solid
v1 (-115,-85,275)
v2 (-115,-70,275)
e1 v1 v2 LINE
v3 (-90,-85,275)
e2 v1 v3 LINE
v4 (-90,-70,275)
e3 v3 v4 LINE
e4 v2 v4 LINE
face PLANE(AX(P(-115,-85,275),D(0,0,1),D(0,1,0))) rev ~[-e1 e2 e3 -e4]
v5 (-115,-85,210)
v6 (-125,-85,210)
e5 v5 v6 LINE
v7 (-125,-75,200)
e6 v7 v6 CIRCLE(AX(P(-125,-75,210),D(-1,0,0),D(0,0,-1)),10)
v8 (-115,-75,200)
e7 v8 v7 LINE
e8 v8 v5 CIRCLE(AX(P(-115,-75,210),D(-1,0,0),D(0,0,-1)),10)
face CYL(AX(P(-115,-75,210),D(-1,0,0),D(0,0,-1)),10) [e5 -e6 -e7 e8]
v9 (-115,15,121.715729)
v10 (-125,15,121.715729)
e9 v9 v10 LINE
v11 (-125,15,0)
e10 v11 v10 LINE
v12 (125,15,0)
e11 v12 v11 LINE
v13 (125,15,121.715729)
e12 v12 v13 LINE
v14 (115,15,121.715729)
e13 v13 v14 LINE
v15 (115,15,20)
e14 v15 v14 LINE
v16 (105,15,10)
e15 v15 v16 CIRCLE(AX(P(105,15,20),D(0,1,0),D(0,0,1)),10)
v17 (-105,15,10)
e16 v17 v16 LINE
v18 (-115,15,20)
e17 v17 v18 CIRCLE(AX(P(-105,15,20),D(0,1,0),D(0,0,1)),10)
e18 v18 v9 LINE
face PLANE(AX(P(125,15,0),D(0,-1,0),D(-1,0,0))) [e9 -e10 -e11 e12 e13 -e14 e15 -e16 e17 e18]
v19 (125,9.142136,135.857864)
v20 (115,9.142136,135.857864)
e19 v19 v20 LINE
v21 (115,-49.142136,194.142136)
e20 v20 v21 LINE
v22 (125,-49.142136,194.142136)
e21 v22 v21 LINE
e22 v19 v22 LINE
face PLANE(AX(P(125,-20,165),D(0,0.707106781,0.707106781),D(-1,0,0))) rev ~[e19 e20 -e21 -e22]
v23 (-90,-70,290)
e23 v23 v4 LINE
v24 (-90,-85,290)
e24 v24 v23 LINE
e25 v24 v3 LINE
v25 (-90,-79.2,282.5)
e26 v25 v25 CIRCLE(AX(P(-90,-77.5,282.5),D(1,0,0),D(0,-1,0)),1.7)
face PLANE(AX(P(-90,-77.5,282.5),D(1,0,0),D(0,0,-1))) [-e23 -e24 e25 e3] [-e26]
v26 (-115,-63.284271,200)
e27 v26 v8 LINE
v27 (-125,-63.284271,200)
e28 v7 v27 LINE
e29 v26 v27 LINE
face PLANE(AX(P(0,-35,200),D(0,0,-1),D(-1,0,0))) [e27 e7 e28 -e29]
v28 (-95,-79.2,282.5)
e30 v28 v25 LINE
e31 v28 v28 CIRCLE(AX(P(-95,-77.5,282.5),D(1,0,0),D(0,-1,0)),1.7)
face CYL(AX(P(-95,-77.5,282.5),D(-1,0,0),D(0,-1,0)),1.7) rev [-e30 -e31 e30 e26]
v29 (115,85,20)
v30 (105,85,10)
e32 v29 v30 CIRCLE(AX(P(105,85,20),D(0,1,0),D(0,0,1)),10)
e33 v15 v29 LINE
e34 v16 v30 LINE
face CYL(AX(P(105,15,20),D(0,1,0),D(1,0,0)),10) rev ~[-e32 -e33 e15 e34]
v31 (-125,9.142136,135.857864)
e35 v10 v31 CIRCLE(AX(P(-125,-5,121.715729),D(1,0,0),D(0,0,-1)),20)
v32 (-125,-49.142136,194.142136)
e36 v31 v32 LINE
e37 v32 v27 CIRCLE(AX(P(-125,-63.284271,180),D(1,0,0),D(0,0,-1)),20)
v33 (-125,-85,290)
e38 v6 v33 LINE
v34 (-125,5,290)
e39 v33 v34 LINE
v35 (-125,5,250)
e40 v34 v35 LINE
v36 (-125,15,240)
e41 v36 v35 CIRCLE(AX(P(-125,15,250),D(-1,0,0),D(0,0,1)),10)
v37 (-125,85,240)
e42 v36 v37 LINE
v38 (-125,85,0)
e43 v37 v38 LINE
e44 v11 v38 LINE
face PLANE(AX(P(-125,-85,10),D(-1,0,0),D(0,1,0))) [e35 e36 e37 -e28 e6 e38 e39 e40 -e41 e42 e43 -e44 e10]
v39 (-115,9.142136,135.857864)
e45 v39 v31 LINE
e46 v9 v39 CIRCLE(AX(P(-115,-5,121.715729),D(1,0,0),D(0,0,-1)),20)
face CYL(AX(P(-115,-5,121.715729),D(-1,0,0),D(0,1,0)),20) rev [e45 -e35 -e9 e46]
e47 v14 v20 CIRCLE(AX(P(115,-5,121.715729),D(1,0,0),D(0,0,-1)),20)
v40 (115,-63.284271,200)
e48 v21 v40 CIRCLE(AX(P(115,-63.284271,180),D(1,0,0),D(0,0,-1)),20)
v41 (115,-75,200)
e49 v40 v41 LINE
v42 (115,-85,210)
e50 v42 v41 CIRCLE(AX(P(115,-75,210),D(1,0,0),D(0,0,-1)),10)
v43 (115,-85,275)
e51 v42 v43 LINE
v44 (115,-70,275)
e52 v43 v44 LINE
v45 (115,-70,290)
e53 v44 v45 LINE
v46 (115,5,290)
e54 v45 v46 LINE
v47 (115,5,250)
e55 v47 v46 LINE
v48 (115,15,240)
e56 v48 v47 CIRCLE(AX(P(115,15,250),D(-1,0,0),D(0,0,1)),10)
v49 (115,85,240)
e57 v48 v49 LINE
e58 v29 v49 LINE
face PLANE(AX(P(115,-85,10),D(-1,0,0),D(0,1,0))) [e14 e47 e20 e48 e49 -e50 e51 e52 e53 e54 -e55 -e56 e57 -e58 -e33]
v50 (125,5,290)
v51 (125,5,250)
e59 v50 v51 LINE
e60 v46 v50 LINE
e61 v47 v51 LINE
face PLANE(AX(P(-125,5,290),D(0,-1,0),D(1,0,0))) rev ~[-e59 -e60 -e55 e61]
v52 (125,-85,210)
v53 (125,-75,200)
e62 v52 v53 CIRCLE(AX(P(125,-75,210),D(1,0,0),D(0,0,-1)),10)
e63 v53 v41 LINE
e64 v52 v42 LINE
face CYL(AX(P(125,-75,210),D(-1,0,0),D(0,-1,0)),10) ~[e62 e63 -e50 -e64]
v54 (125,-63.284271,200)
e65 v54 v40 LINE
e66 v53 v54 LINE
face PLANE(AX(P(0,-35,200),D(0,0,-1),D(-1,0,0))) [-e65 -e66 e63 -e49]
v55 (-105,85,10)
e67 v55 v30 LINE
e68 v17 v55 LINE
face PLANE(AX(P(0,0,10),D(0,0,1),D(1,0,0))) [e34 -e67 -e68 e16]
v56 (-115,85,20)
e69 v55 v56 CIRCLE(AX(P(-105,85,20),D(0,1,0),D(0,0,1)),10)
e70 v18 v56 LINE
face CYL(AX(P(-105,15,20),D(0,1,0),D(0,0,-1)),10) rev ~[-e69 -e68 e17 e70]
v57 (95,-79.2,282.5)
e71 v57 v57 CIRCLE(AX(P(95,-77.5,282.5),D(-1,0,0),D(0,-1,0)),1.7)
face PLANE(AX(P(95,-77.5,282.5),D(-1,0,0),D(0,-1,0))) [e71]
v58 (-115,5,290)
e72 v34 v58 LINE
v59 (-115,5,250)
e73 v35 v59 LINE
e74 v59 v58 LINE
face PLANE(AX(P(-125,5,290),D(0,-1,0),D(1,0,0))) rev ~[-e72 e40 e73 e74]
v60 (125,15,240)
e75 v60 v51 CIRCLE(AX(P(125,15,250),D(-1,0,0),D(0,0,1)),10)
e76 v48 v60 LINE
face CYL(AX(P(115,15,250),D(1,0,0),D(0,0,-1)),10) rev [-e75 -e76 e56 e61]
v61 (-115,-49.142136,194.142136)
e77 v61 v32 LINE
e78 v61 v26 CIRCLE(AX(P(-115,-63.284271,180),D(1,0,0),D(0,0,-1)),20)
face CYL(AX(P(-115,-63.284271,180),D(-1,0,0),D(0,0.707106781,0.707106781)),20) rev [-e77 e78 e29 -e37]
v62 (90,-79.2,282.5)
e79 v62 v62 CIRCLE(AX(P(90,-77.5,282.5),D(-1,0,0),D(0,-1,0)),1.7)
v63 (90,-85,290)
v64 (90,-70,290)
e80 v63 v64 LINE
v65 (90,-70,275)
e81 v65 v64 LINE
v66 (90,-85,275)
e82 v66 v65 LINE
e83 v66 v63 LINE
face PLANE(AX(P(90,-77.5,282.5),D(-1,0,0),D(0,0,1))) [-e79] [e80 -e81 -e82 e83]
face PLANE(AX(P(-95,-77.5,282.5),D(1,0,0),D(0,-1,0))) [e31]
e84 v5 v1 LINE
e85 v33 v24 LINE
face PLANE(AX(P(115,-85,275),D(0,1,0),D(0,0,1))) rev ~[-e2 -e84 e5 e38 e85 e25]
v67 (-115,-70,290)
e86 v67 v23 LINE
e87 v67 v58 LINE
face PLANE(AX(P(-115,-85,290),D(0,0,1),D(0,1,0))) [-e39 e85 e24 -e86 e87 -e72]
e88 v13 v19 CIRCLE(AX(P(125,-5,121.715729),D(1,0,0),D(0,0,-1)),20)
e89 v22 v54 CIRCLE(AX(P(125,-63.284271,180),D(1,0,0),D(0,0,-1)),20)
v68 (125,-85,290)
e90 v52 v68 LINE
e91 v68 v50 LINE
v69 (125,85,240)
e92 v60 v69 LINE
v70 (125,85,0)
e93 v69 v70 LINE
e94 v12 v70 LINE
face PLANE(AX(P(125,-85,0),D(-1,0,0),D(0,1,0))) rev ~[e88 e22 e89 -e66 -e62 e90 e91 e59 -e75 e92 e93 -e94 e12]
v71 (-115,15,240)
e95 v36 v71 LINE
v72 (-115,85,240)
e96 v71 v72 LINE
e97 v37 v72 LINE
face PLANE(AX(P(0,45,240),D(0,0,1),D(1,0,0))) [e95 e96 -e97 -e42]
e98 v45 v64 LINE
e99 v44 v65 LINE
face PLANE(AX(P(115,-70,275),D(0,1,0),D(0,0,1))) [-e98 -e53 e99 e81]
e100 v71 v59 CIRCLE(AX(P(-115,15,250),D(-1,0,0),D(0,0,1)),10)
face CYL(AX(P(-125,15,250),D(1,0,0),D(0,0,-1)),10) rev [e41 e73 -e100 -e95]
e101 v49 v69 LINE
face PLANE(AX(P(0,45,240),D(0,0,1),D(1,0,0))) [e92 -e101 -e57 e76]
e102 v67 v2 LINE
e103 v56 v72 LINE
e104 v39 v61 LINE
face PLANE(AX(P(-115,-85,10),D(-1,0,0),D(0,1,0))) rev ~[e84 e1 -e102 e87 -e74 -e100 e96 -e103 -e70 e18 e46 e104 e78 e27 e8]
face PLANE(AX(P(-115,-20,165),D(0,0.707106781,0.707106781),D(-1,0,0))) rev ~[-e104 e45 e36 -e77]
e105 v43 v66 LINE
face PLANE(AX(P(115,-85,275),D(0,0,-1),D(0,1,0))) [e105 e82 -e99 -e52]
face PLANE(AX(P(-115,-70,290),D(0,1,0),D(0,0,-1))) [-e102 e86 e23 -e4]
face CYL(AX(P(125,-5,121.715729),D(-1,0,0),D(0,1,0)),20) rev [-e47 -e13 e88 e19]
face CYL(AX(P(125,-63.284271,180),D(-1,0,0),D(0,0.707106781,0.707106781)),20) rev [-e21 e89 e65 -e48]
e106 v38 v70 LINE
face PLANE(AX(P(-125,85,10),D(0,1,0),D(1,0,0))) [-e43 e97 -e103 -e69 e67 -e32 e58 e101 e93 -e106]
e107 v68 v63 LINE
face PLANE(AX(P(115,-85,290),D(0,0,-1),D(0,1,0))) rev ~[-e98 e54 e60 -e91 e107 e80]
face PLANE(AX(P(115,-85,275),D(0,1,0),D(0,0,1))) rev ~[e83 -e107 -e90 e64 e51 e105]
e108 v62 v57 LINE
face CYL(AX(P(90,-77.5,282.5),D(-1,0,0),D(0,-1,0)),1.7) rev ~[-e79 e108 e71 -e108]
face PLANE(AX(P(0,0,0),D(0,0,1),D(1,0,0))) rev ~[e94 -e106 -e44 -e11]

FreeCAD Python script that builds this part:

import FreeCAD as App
import Part
import Sketcher
from FreeCAD import Vector
Q = App.Units.Quantity


def edges_at(feature, points):
    """Names of the edges that pass closest to the given points."""
    edges = feature.Shape.Edges
    near = lambda p: min(range(len(edges)), key=lambda i: edges[i].distToShape(Part.Vertex(*p))[0])
    return sorted({f"Edge{near(p) + 1}" for p in points})

doc = App.newDocument("Part")
body = doc.addObject("PartDesign::Body", "Body")

# Sketch on XY plane
sketch1 = body.newObject("Sketcher::SketchObject", "Sketch")
sketch1.AttachmentSupport = (doc.getObject("XY_Plane"), [""])
sketch1.MapMode = "FlatFace"
sketch1.addGeometry(Part.LineSegment(Vector(-125, 85, 0), Vector(-125, -85, 0)), False)
sketch1.addGeometry(Part.LineSegment(Vector(-125, -85, 0), Vector(125, -85, 0)), False)
sketch1.addGeometry(Part.LineSegment(Vector(125, -85, 0), Vector(125, 85, 0)), False)
sketch1.addGeometry(Part.LineSegment(Vector(125, 85, 0), Vector(-125, 85, 0)), False)
sketch1.addConstraint(Sketcher.Constraint("Coincident", 0, 2, 1, 1))
sketch1.addConstraint(Sketcher.Constraint("Coincident", 1, 2, 2, 1))
sketch1.addConstraint(Sketcher.Constraint("Coincident", 2, 2, 3, 1))
sketch1.addConstraint(Sketcher.Constraint("Coincident", 3, 2, 0, 1))
sketch1.addConstraint(Sketcher.Constraint("Vertical", 0))
sketch1.addConstraint(Sketcher.Constraint("Horizontal", 1))
sketch1.addConstraint(Sketcher.Constraint("Vertical", 2))
sketch1.addConstraint(Sketcher.Constraint("Horizontal", 3))
sketch1.addConstraint(Sketcher.Constraint("Symmetric", 0, 2, 2, 2, -1, 1))
sketch1.addConstraint(Sketcher.Constraint("DistanceX", 1, 1, 1, 2, Q("250 mm")))
sketch1.addConstraint(Sketcher.Constraint("DistanceY", 0, 2, 0, 1, Q("170 mm")))
pad1 = body.newObject("PartDesign::Pad", "Pad")
pad1.Profile = sketch1
pad1.Length = 10

# Sketch on XY plane
sketch2 = body.newObject("Sketcher::SketchObject", "Sketch001")
sketch2.AttachmentSupport = (doc.getObject("XY_Plane"), [""])
sketch2.MapMode = "FlatFace"
sketch2.AttachmentOffset = App.Placement(Vector(0, 0, 10), App.Rotation())
sketch2.addGeometry(Part.LineSegment(Vector(-125, 85, 0), Vector(-125, -85, 0)), False)
sketch2.addGeometry(Part.LineSegment(Vector(-125, -85, 0), Vector(-115, -85, 0)), False)
sketch2.addGeometry(Part.LineSegment(Vector(-115, -85, 0), Vector(-115, 85, 0)), False)
sketch2.addGeometry(Part.LineSegment(Vector(-115, 85, 0), Vector(-125, 85, 0)), False)
sketch2.addGeometry(Part.LineSegment(Vector(115, 85, 0), Vector(115, -85, 0)), False)
sketch2.addGeometry(Part.LineSegment(Vector(115, -85, 0), Vector(125, -85, 0)), False)
sketch2.addGeometry(Part.LineSegment(Vector(125, -85, 0), Vector(125, 85, 0)), False)
sketch2.addGeometry(Part.LineSegment(Vector(125, 85, 0), Vector(115, 85, 0)), False)
sketch2.addConstraint(Sketcher.Constraint("Coincident", 0, 2, 1, 1))
sketch2.addConstraint(Sketcher.Constraint("Coincident", 1, 2, 2, 1))
sketch2.addConstraint(Sketcher.Constraint("Coincident", 2, 2, 3, 1))
sketch2.addConstraint(Sketcher.Constraint("Coincident", 3, 2, 0, 1))
sketch2.addConstraint(Sketcher.Constraint("Coincident", 4, 2, 5, 1))
sketch2.addConstraint(Sketcher.Constraint("Coincident", 5, 2, 6, 1))
sketch2.addConstraint(Sketcher.Constraint("Coincident", 6, 2, 7, 1))
sketch2.addConstraint(Sketcher.Constraint("Coincident", 7, 2, 4, 1))
sketch2.addConstraint(Sketcher.Constraint("Vertical", 0))
sketch2.addConstraint(Sketcher.Constraint("Horizontal", 1))
sketch2.addConstraint(Sketcher.Constraint("Vertical", 2))
sketch2.addConstraint(Sketcher.Constraint("Horizontal", 3))
sketch2.addConstraint(Sketcher.Constraint("Vertical", 4))
sketch2.addConstraint(Sketcher.Constraint("Horizontal", 5))
sketch2.addConstraint(Sketcher.Constraint("Vertical", 6))
sketch2.addConstraint(Sketcher.Constraint("Horizontal", 7))
sketch2.addConstraint(Sketcher.Constraint("Symmetric", 2, 2, 4, 2, -1, 1))
sketch2.addConstraint(Sketcher.Constraint("Symmetric", 0, 2, 6, 2, -1, 1))
sketch2.addConstraint(Sketcher.Constraint("Horizontal", 1, 2, 4, 2))
sketch2.addConstraint(Sketcher.Constraint("DistanceX", 1, 1, 1, 2, Q("10 mm")))
sketch2.addConstraint(Sketcher.Constraint("DistanceY", 0, 2, 0, 1, Q("170 mm")))
sketch2.addConstraint(Sketcher.Constraint("DistanceX", 0, 2, -1, 1, Q("125 mm")))
pad2 = body.newObject("PartDesign::Pad", "Pad001")
pad2.Profile = sketch2
pad2.Length = 280

# Sketch on YZ plane
sketch3 = body.newObject("Sketcher::SketchObject", "Sketch002")
sketch3.AttachmentSupport = (doc.getObject("YZ_Plane"), [""])
sketch3.MapMode = "FlatFace"
sketch3.AttachmentOffset = App.Placement(Vector(0, 0, -115), App.Rotation())
sketch3.addGeometry(Part.LineSegment(Vector(-70, 290, 0), Vector(-85, 290, 0)), False)
sketch3.addGeometry(Part.LineSegment(Vector(-85, 290, 0), Vector(-85, 275, 0)), False)
sketch3.addGeometry(Part.LineSegment(Vector(-85, 275, 0), Vector(-70, 275, 0)), False)
sketch3.addGeometry(Part.LineSegment(Vector(-70, 275, 0), Vector(-70, 290, 0)), False)
sketch3.addConstraint(Sketcher.Constraint("Coincident", 0, 2, 1, 1))
sketch3.addConstraint(Sketcher.Constraint("Coincident", 1, 2, 2, 1))
sketch3.addConstraint(Sketcher.Constraint("Coincident", 2, 2, 3, 1))
sketch3.addConstraint(Sketcher.Constraint("Coincident", 3, 2, 0, 1))
sketch3.addConstraint(Sketcher.Constraint("Horizontal", 0))
sketch3.addConstraint(Sketcher.Constraint("Vertical", 1))
sketch3.addConstraint(Sketcher.Constraint("Horizontal", 2))
sketch3.addConstraint(Sketcher.Constraint("Vertical", 3))
sketch3.addConstraint(Sketcher.Constraint("Equal", 2, 1))
sketch3.addConstraint(Sketcher.Constraint("DistanceX", 0, 2, 0, 1, Q("15 mm")))
sketch3.addConstraint(Sketcher.Constraint("DistanceX", 0, 2, -1, 1, Q("85 mm")))
sketch3.addConstraint(Sketcher.Constraint("DistanceY", -1, 1, 0, 2, Q("290 mm")))
pad3 = body.newObject("PartDesign::Pad", "Pad002")
pad3.Profile = sketch3
pad3.Length = 25

# Sketch on YZ plane
sketch4 = body.newObject("Sketcher::SketchObject", "Sketch003")
sketch4.AttachmentSupport = (doc.getObject("YZ_Plane"), [""])
sketch4.MapMode = "FlatFace"
sketch4.AttachmentOffset = App.Placement(Vector(0, 0, 115), App.Rotation())
sketch4.addGeometry(Part.LineSegment(Vector(-70, 275, 0), Vector(-85, 275, 0)), False)
sketch4.addGeometry(Part.LineSegment(Vector(-85, 275, 0), Vector(-85, 290, 0)), False)
sketch4.addGeometry(Part.LineSegment(Vector(-85, 290, 0), Vector(-70, 290, 0)), False)
sketch4.addGeometry(Part.LineSegment(Vector(-70, 290, 0), Vector(-70, 275, 0)), False)
sketch4.addConstraint(Sketcher.Constraint("Coincident", 0, 2, 1, 1))
sketch4.addConstraint(Sketcher.Constraint("Coincident", 1, 2, 2, 1))
sketch4.addConstraint(Sketcher.Constraint("Coincident", 2, 2, 3, 1))
sketch4.addConstraint(Sketcher.Constraint("Coincident", 3, 2, 0, 1))
sketch4.addConstraint(Sketcher.Constraint("Horizontal", 0))
sketch4.addConstraint(Sketcher.Constraint("Vertical", 1))
sketch4.addConstraint(Sketcher.Constraint("Horizontal", 2))
sketch4.addConstraint(Sketcher.Constraint("Vertical", 3))
sketch4.addConstraint(Sketcher.Constraint("Equal", 2, 1))
sketch4.addConstraint(Sketcher.Constraint("DistanceX", 0, 2, 0, 1, Q("15 mm")))
sketch4.addConstraint(Sketcher.Constraint("DistanceX", 0, 2, -1, 1, Q("85 mm")))
sketch4.addConstraint(Sketcher.Constraint("DistanceY", -1, 1, 0, 2, Q("275 mm")))
pad4 = body.newObject("PartDesign::Pad", "Pad003")
pad4.Profile = sketch4
pad4.Length = 25
pad4.Reversed = True

# Sketch on YZ plane
sketch5 = body.newObject("Sketcher::SketchObject", "Sketch004")
sketch5.AttachmentSupport = (doc.getObject("YZ_Plane"), [""])
sketch5.MapMode = "FlatFace"
sketch5.AttachmentOffset = App.Placement(Vector(0, 0, 90), App.Rotation())
sketch5.addGeometry(Part.Circle(Vector(-77.5, 282.5, 0), Vector(0, 0, 1), 1.7), False)
sketch5.addConstraint(Sketcher.Constraint("Diameter", 0, Q("3.4 mm")))
sketch5.addConstraint(Sketcher.Constraint("DistanceX", 0, 3, -1, 1, Q("77.5 mm")))
sketch5.addConstraint(Sketcher.Constraint("DistanceY", -1, 1, 0, 3, Q("282.5 mm")))
pocket1 = body.newObject("PartDesign::Pocket", "Pocket")
pocket1.Profile = sketch5
pocket1.Length = 5
pocket1.Reversed = True

# Sketch on YZ plane
sketch6 = body.newObject("Sketcher::SketchObject", "Sketch005")
sketch6.AttachmentSupport = (doc.getObject("YZ_Plane"), [""])
sketch6.MapMode = "FlatFace"
sketch6.AttachmentOffset = App.Placement(Vector(0, 0, -95), App.Rotation())
sketch6.addGeometry(Part.Circle(Vector(-77.5, 282.5, 0), Vector(0, 0, 1), 1.7), False)
sketch6.addConstraint(Sketcher.Constraint("Diameter", 0, Q("3.4 mm")))
sketch6.addConstraint(Sketcher.Constraint("DistanceX", 0, 3, -1, 1, Q("77.5 mm")))
sketch6.addConstraint(Sketcher.Constraint("DistanceY", -1, 1, 0, 3, Q("282.5 mm")))
pocket2 = body.newObject("PartDesign::Pocket", "Pocket001")
pocket2.Profile = sketch6
pocket2.Length = 5
pocket2.Reversed = True

# Sketch on XY plane
sketch7 = body.newObject("Sketcher::SketchObject", "Sketch006")
sketch7.AttachmentSupport = (doc.getObject("XY_Plane"), [""])
sketch7.MapMode = "FlatFace"
sketch7.addGeometry(Part.LineSegment(Vector(125, 15, 0), Vector(125, -85, 0)), False)
sketch7.addGeometry(Part.LineSegment(Vector(125, -85, 0), Vector(-125, -85, 0)), False)
sketch7.addGeometry(Part.LineSegment(Vector(-125, -85, 0), Vector(-125, 15, 0)), False)
sketch7.addGeometry(Part.LineSegment(Vector(-125, 15, 0), Vector(125, 15, 0)), False)
sketch7.addConstraint(Sketcher.Constraint("Coincident", 0, 2, 1, 1))
sketch7.addConstraint(Sketcher.Constraint("Coincident", 1, 2, 2, 1))
sketch7.addConstraint(Sketcher.Constraint("Coincident", 2, 2, 3, 1))
sketch7.addConstraint(Sketcher.Constraint("Coincident", 3, 2, 0, 1))
sketch7.addConstraint(Sketcher.Constraint("Vertical", 0))
sketch7.addConstraint(Sketcher.Constraint("Horizontal", 1))
sketch7.addConstraint(Sketcher.Constraint("Vertical", 2))
sketch7.addConstraint(Sketcher.Constraint("Horizontal", 3))
sketch7.addConstraint(Sketcher.Constraint("DistanceX", 1, 2, 1, 1, Q("250 mm")))
sketch7.addConstraint(Sketcher.Constraint("DistanceY", 0, 2, 0, 1, Q("100 mm")))
sketch7.addConstraint(Sketcher.Constraint("DistanceX", -1, 1, 0, 2, Q("125 mm")))
sketch7.addConstraint(Sketcher.Constraint("DistanceY", 0, 2, -1, 1, Q("85 mm")))
pocket3 = body.newObject("PartDesign::Pocket", "Pocket002")
pocket3.Profile = sketch7
pocket3.Length = 200
pocket3.Reversed = True

# Sketch on XY plane
sketch8 = body.newObject("Sketcher::SketchObject", "Sketch007")
sketch8.AttachmentSupport = (doc.getObject("XY_Plane"), [""])
sketch8.MapMode = "FlatFace"
sketch8.AttachmentOffset = App.Placement(Vector(0, 0, 290), App.Rotation())
sketch8.addGeometry(Part.LineSegment(Vector(-125, 85, 0), Vector(-125, 5, 0)), False)
sketch8.addGeometry(Part.LineSegment(Vector(-125, 5, 0), Vector(125, 5, 0)), False)
sketch8.addGeometry(Part.LineSegment(Vector(125, 5, 0), Vector(125, 85, 0)), False)
sketch8.addGeometry(Part.LineSegment(Vector(125, 85, 0), Vector(-125, 85, 0)), False)
sketch8.addConstraint(Sketcher.Constraint("Coincident", 0, 2, 1, 1))
sketch8.addConstraint(Sketcher.Constraint("Coincident", 1, 2, 2, 1))
sketch8.addConstraint(Sketcher.Constraint("Coincident", 2, 2, 3, 1))
sketch8.addConstraint(Sketcher.Constraint("Coincident", 3, 2, 0, 1))
sketch8.addConstraint(Sketcher.Constraint("Vertical", 0))
sketch8.addConstraint(Sketcher.Constraint("Horizontal", 1))
sketch8.addConstraint(Sketcher.Constraint("Vertical", 2))
sketch8.addConstraint(Sketcher.Constraint("Horizontal", 3))
sketch8.addConstraint(Sketcher.Constraint("DistanceX", 1, 1, 1, 2, Q("250 mm")))
sketch8.addConstraint(Sketcher.Constraint("DistanceY", 0, 2, 0, 1, Q("80 mm")))
sketch8.addConstraint(Sketcher.Constraint("DistanceX", 0, 2, -1, 1, Q("125 mm")))
sketch8.addConstraint(Sketcher.Constraint("DistanceY", -1, 1, 0, 2, Q("5 mm")))
pocket4 = body.newObject("PartDesign::Pocket", "Pocket003")
pocket4.Profile = sketch8
pocket4.Length = 50
doc.recompute()

fillet = body.newObject("PartDesign::Fillet", "Fillet")
fillet.Base = (pocket4, edges_at(pocket4, [
    (120, 5, 240),
    (-120, 5, 240),
    (115, 50, 10),
    (-115, 50, 10),
    (120, -85, 200),
    (-120, -85, 200),
]))
fillet.Radius = 10
doc.recompute()

chamfer = body.newObject("PartDesign::Chamfer", "Chamfer")
chamfer.Base = (fillet, edges_at(fillet, [(120, 15, 200), (-120, 15, 200)]))
chamfer.Size = 70
doc.recompute()

fillet2 = body.newObject("PartDesign::Fillet", "Fillet001")
fillet2.Base = (chamfer, edges_at(chamfer, [
    (120, -55, 200),
    (-120, 15, 130),
    (120, 15, 130),
    (-120, -55, 200),
]))
fillet2.Radius = 20

doc.recompute()
